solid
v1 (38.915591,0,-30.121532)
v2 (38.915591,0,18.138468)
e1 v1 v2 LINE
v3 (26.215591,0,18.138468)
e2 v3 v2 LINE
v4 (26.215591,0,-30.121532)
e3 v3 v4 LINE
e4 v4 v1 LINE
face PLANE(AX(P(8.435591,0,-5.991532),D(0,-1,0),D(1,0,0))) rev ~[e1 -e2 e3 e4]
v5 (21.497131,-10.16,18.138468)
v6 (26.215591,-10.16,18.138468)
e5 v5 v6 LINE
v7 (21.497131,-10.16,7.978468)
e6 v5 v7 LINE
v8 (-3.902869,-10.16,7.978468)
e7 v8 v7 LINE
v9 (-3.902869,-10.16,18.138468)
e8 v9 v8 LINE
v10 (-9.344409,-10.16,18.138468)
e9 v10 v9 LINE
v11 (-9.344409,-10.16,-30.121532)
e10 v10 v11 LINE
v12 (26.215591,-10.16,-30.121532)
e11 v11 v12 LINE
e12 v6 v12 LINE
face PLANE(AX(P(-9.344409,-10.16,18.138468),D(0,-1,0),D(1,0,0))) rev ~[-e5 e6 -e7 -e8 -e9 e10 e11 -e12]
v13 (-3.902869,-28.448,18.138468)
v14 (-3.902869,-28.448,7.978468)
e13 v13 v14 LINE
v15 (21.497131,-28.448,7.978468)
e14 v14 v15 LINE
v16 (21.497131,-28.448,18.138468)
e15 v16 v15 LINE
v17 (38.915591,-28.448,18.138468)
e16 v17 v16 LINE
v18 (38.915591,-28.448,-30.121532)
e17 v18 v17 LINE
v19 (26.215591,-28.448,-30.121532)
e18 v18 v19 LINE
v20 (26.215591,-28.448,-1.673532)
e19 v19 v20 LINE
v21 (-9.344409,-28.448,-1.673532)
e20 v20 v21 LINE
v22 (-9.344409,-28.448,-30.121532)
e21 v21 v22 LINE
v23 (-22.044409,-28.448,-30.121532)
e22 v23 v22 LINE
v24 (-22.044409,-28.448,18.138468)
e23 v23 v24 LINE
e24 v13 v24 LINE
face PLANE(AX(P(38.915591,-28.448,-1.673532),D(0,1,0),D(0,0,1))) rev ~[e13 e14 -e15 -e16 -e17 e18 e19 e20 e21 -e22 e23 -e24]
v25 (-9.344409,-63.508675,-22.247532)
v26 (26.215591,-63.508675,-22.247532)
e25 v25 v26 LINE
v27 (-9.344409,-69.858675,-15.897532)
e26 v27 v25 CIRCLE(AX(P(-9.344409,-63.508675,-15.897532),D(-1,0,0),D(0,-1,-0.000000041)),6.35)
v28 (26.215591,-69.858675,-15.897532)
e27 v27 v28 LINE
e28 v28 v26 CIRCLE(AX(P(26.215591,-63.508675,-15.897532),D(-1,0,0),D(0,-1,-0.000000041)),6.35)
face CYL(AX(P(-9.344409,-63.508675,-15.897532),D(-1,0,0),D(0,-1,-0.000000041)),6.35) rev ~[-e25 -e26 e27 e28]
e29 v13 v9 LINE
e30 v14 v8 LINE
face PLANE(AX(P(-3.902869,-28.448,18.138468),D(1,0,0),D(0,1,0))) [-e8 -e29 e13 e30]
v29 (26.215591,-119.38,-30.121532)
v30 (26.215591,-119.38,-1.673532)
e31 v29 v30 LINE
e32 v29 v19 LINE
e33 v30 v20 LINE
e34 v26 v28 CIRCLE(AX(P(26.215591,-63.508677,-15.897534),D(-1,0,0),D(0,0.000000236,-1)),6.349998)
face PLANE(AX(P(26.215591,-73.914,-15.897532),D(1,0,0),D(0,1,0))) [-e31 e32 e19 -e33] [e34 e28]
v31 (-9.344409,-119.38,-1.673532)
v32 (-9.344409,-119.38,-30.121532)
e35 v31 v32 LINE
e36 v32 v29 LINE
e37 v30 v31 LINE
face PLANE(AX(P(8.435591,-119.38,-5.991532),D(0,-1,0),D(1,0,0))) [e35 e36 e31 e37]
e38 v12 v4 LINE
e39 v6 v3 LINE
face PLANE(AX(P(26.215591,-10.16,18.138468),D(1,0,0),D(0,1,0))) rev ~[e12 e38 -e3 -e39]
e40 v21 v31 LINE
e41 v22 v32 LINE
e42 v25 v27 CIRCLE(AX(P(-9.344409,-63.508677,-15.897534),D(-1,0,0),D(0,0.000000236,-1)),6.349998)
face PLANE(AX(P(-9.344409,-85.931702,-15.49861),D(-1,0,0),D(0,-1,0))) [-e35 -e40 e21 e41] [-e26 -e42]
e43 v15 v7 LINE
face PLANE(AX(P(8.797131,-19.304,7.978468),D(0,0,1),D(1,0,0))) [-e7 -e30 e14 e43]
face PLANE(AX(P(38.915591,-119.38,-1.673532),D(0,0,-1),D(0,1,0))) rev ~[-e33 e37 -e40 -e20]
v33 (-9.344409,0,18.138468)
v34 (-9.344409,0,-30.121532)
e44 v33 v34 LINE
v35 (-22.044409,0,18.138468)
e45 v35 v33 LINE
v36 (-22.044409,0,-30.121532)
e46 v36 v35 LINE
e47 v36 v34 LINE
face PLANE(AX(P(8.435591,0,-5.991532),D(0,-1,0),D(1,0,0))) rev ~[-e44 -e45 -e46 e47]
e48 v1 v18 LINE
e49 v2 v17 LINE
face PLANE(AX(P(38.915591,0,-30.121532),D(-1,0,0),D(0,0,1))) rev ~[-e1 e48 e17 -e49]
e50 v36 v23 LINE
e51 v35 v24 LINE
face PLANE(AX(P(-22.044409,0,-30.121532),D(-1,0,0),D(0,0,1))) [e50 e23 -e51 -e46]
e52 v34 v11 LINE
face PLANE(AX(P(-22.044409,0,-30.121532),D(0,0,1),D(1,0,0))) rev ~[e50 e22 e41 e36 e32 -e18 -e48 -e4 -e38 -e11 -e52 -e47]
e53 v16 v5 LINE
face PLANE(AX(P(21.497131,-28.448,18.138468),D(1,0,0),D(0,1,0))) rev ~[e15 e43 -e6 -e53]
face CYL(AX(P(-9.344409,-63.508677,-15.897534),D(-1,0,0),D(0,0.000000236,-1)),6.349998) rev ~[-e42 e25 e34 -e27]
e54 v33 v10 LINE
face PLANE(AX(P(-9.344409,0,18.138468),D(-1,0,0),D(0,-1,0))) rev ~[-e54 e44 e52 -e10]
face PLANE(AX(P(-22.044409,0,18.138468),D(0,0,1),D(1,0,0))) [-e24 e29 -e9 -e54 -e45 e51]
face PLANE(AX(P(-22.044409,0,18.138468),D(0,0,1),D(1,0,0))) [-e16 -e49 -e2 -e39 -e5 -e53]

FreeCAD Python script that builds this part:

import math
import FreeCAD as App
import Part
import Sketcher
from FreeCAD import Vector
Q = App.Units.Quantity

doc = App.newDocument("Part")
body = doc.addObject("PartDesign::Body", "Body")

sketch1 = doc.addObject("Sketcher::SketchObject", "Sketch")
body.addObject(sketch1)
sketch1.AttachmentSupport = (doc.XZ_Plane, [""])
sketch1.MapMode = "FlatFace"
sketch1.addGeometry([
    Part.LineSegment(Vector(-22, 18, 0), Vector(-22, -30, 0)),
    Part.LineSegment(Vector(-22, -30, 0), Vector(39, -30, 0)),
    Part.LineSegment(Vector(39, -30, 0), Vector(39, 18, 0)),
    Part.LineSegment(Vector(39, 18, 0), Vector(-22, 18, 0)),
], False)
sketch1.addConstraint([
    Sketcher.Constraint("Coincident", 0, 2, 1, 1),
    Sketcher.Constraint("Coincident", 1, 2, 2, 1),
    Sketcher.Constraint("Coincident", 2, 2, 3, 1),
    Sketcher.Constraint("Coincident", 3, 2, 0, 1),
    Sketcher.Constraint("Vertical", 0),
    Sketcher.Constraint("Horizontal", 1),
    Sketcher.Constraint("Vertical", 2),
    Sketcher.Constraint("Horizontal", 3),
    Sketcher.Constraint("DistanceX", 1, 1, 1, 2, Q("2.4 in")),
    Sketcher.Constraint("DistanceY", 0, 2, 0, 1, Q("1.9 in")),
    Sketcher.Constraint("DistanceX", 0, 2, -1, 1, 22.044409),
    Sketcher.Constraint("DistanceY", 0, 2, -1, 1, 30.121532),
])
pad1 = doc.addObject("PartDesign::Pad", "Pad")
body.addObject(pad1)
pad1.Profile = sketch1
pad1.Length = Q("4.7 in")

sketch2 = doc.addObject("Sketcher::SketchObject", "Sketch001")
body.addObject(sketch2)
sketch2.AttachmentSupport = (doc.XY_Plane, [""])
sketch2.MapMode = "FlatFace"
sketch2.AttachmentOffset = App.Placement(Vector(0, 0, 18.138468), App.Rotation())
sketch2.addGeometry([
    Part.LineSegment(Vector(26, 0, 0), Vector(-9, 0, 0)),
    Part.LineSegment(Vector(-9, 0, 0), Vector(-9, -10, 0)),
    Part.LineSegment(Vector(-9, -10, 0), Vector(26, -10, 0)),
    Part.LineSegment(Vector(26, -10, 0), Vector(26, 0, 0)),
], False)
sketch2.addConstraint([
    Sketcher.Constraint("Coincident", 0, 2, 1, 1),
    Sketcher.Constraint("Coincident", 1, 2, 2, 1),
    Sketcher.Constraint("Coincident", 2, 2, 3, 1),
    Sketcher.Constraint("Coincident", 3, 2, 0, 1),
    Sketcher.Constraint("Horizontal", 0),
    Sketcher.Constraint("Vertical", 1),
    Sketcher.Constraint("Horizontal", 2),
    Sketcher.Constraint("Vertical", 3),
    Sketcher.Constraint("PointOnObject", 0, 2, -1),
    Sketcher.Constraint("DistanceX", 0, 2, 0, 1, Q("1.4 in")),
    Sketcher.Constraint("DistanceY", 1, 2, 1, 1, Q("0.4 in")),
    Sketcher.Constraint("DistanceX", 0, 2, -1, 1, 9.344409),
])
pocket1 = doc.addObject("PartDesign::Pocket", "Pocket")
body.addObject(pocket1)
pocket1.Profile = sketch2
pocket1.Length = Q("5.15 in")

sketch3 = doc.addObject("Sketcher::SketchObject", "Sketch002")
body.addObject(sketch3)
sketch3.AttachmentSupport = (doc.XY_Plane, [""])
sketch3.MapMode = "FlatFace"
sketch3.AttachmentOffset = App.Placement(Vector(0, 0, 18.138468), App.Rotation())
sketch3.addGeometry([
    Part.LineSegment(Vector(-4, -10, 0), Vector(-4, -28, 0)),
    Part.LineSegment(Vector(-4, -28, 0), Vector(21, -28, 0)),
    Part.LineSegment(Vector(21, -28, 0), Vector(21, -10, 0)),
    Part.LineSegment(Vector(21, -10, 0), Vector(-4, -10, 0)),
], False)
sketch3.addConstraint([
    Sketcher.Constraint("Coincident", 0, 2, 1, 1),
    Sketcher.Constraint("Coincident", 1, 2, 2, 1),
    Sketcher.Constraint("Coincident", 2, 2, 3, 1),
    Sketcher.Constraint("Coincident", 3, 2, 0, 1),
    Sketcher.Constraint("Vertical", 0),
    Sketcher.Constraint("Horizontal", 1),
    Sketcher.Constraint("Vertical", 2),
    Sketcher.Constraint("Horizontal", 3),
    Sketcher.Constraint("DistanceX", 1, 1, 1, 2, Q("1 in")),
    Sketcher.Constraint("DistanceY", 0, 2, 0, 1, Q("0.72 in")),
    Sketcher.Constraint("DistanceY", 2, 2, -1, 1, Q("0.4 in")),
    Sketcher.Constraint("DistanceX", 0, 2, -1, 1, 3.902869),
])
pocket2 = doc.addObject("PartDesign::Pocket", "Pocket001")
body.addObject(pocket2)
pocket2.Profile = sketch3
pocket2.Length = Q("0.4 in")

sketch4 = doc.addObject("Sketcher::SketchObject", "Sketch003")
body.addObject(sketch4)
sketch4.AttachmentSupport = (doc.YZ_Plane, [""])
sketch4.MapMode = "FlatFace"
sketch4.AttachmentOffset = App.Placement(Vector(0, 0, -22.044409), App.Rotation())
sketch4.addGeometry([
    Part.LineSegment(Vector(-28, -2, 0), Vector(-28, -30, 0)),
    Part.LineSegment(Vector(-28, -30, 0), Vector(-143, -30, 0)),
    Part.LineSegment(Vector(-143, -30, 0), Vector(-143, 0, 0)),
    Part.LineSegment(Vector(-143, 0, 0), Vector(-28, -2, 0)),
], False)
sketch4.addConstraint([
    Sketcher.Constraint("Coincident", 0, 2, 1, 1),
    Sketcher.Constraint("Coincident", 1, 2, 2, 1),
    Sketcher.Constraint("Coincident", 2, 2, 3, 1),
    Sketcher.Constraint("Coincident", 3, 2, 0, 1),
    Sketcher.Constraint("Vertical", 0),
    Sketcher.Constraint("Horizontal", 1),
    Sketcher.Constraint("PointOnObject", 2, 2, -1),
    Sketcher.Constraint("Perpendicular", 2, 3),
    Sketcher.Constraint("DistanceY", 0, 2, 0, 1, Q("1.12 in")),
    Sketcher.Constraint("DistanceX", 0, 2, -1, 1, Q("1.12 in")),
    Sketcher.Constraint("Distance", 3, 114.091051),
    Sketcher.Constraint("DistanceX", 1, 2, 1, 1, 114.520658),
])
pocket3 = doc.addObject("PartDesign::Pocket", "Pocket002")
body.addObject(pocket3)
pocket3.Profile = sketch4
pocket3.Length = Q("0.5 in")
pocket3.Reversed = True

sketch5 = doc.addObject("Sketcher::SketchObject", "Sketch004")
body.addObject(sketch5)
sketch5.AttachmentSupport = (doc.YZ_Plane, [""])
sketch5.MapMode = "FlatFace"
sketch5.AttachmentOffset = App.Placement(Vector(0, 0, 38.915591), App.Rotation())
sketch5.addGeometry([
    Part.LineSegment(Vector(-119, -2, 0), Vector(-119, -30, 0)),
    Part.LineSegment(Vector(-119, -30, 0), Vector(-28, -30, 0)),
    Part.LineSegment(Vector(-28, -30, 0), Vector(-28, -2, 0)),
    Part.LineSegment(Vector(-28, -2, 0), Vector(-119, -2, 0)),
], False)
sketch5.addConstraint([
    Sketcher.Constraint("Coincident", 0, 2, 1, 1),
    Sketcher.Constraint("Coincident", 1, 2, 2, 1),
    Sketcher.Constraint("Coincident", 2, 2, 3, 1),
    Sketcher.Constraint("Coincident", 3, 2, 0, 1),
    Sketcher.Constraint("Vertical", 0),
    Sketcher.Constraint("Horizontal", 1),
    Sketcher.Constraint("Vertical", 2),
    Sketcher.Constraint("Horizontal", 3),
    Sketcher.Constraint("DistanceX", 1, 1, 1, 2, Q("3.58 in")),
    Sketcher.Constraint("DistanceY", 0, 2, 0, 1, Q("1.12 in")),
    Sketcher.Constraint("DistanceX", 0, 2, -1, 1, Q("4.7 in")),
    Sketcher.Constraint("DistanceY", 0, 2, -1, 1, 30.121532),
])
pocket4 = doc.addObject("PartDesign::Pocket", "Pocket003")
body.addObject(pocket4)
pocket4.Profile = sketch5
pocket4.Length = Q("0.5 in")

sketch6 = doc.addObject("Sketcher::SketchObject", "Sketch005")
body.addObject(sketch6)
sketch6.AttachmentSupport = (doc.YZ_Plane, [""])
sketch6.MapMode = "FlatFace"
sketch6.AttachmentOffset = App.Placement(Vector(0, 0, 38.915591), App.Rotation())
sketch6.addGeometry([
    Part.LineSegment(Vector(-119, 18, 0), Vector(-119, -2, 0)),
    Part.LineSegment(Vector(-119, -2, 0), Vector(-28, -2, 0)),
    Part.LineSegment(Vector(-28, -2, 0), Vector(-28, 18, 0)),
    Part.LineSegment(Vector(-28, 18, 0), Vector(-119, 18, 0)),
], False)
sketch6.addConstraint([
    Sketcher.Constraint("Coincident", 0, 2, 1, 1),
    Sketcher.Constraint("Coincident", 1, 2, 2, 1),
    Sketcher.Constraint("Coincident", 2, 2, 3, 1),
    Sketcher.Constraint("Coincident", 3, 2, 0, 1),
    Sketcher.Constraint("Vertical", 0),
    Sketcher.Constraint("Horizontal", 1),
    Sketcher.Constraint("Vertical", 2),
    Sketcher.Constraint("Horizontal", 3),
    Sketcher.Constraint("DistanceX", 1, 1, 1, 2, Q("3.58 in")),
    Sketcher.Constraint("DistanceY", 0, 2, 0, 1, Q("0.78 in")),
    Sketcher.Constraint("DistanceX", 0, 2, -1, 1, Q("4.7 in")),
    Sketcher.Constraint("DistanceY", 0, 2, -1, 1, 1.673532),
])
pocket5 = doc.addObject("PartDesign::Pocket", "Pocket004")
body.addObject(pocket5)
pocket5.Profile = sketch6
pocket5.Length = Q("3.32 in")

sketch7 = doc.addObject("Sketcher::SketchObject", "Sketch006")
body.addObject(sketch7)
sketch7.AttachmentSupport = (doc.YZ_Plane, [""])
sketch7.MapMode = "FlatFace"
sketch7.AttachmentOffset = App.Placement(Vector(0, 0, -9.344409), App.Rotation())
sketch7.addGeometry([
    Part.ArcOfCircle(Part.Circle(Vector(-64, -16, 0), Vector(0, 0, 1), 6), math.radians(180), math.radians(270)),
    Part.ArcOfCircle(Part.Circle(Vector(-64, -16, 0), Vector(0, 0, 1), 6), math.radians(-90), math.radians(180)),
], False)
sketch7.addConstraint([
    Sketcher.Constraint("Tangent", 0, 1, 1, 2),
    Sketcher.Constraint("Coincident", 1, 1, 0, 2),
    Sketcher.Constraint("Horizontal", 1, 3, 0, 1),
    Sketcher.Constraint("Vertical", 0, 3, 1, 1),
    Sketcher.Constraint("Radius", 0, Q("0.2499999 in")),
    Sketcher.Constraint("DistanceY", 1, 3, -1, 1, 15.897532),
    Sketcher.Constraint("DistanceX", 0, 3, -1, 1, 63.508676),
])
pocket6 = doc.addObject("PartDesign::Pocket", "Pocket005")
body.addObject(pocket6)
pocket6.Profile = sketch7
pocket6.Length = Q("5.16 in")
pocket6.Reversed = True

doc.recompute()
